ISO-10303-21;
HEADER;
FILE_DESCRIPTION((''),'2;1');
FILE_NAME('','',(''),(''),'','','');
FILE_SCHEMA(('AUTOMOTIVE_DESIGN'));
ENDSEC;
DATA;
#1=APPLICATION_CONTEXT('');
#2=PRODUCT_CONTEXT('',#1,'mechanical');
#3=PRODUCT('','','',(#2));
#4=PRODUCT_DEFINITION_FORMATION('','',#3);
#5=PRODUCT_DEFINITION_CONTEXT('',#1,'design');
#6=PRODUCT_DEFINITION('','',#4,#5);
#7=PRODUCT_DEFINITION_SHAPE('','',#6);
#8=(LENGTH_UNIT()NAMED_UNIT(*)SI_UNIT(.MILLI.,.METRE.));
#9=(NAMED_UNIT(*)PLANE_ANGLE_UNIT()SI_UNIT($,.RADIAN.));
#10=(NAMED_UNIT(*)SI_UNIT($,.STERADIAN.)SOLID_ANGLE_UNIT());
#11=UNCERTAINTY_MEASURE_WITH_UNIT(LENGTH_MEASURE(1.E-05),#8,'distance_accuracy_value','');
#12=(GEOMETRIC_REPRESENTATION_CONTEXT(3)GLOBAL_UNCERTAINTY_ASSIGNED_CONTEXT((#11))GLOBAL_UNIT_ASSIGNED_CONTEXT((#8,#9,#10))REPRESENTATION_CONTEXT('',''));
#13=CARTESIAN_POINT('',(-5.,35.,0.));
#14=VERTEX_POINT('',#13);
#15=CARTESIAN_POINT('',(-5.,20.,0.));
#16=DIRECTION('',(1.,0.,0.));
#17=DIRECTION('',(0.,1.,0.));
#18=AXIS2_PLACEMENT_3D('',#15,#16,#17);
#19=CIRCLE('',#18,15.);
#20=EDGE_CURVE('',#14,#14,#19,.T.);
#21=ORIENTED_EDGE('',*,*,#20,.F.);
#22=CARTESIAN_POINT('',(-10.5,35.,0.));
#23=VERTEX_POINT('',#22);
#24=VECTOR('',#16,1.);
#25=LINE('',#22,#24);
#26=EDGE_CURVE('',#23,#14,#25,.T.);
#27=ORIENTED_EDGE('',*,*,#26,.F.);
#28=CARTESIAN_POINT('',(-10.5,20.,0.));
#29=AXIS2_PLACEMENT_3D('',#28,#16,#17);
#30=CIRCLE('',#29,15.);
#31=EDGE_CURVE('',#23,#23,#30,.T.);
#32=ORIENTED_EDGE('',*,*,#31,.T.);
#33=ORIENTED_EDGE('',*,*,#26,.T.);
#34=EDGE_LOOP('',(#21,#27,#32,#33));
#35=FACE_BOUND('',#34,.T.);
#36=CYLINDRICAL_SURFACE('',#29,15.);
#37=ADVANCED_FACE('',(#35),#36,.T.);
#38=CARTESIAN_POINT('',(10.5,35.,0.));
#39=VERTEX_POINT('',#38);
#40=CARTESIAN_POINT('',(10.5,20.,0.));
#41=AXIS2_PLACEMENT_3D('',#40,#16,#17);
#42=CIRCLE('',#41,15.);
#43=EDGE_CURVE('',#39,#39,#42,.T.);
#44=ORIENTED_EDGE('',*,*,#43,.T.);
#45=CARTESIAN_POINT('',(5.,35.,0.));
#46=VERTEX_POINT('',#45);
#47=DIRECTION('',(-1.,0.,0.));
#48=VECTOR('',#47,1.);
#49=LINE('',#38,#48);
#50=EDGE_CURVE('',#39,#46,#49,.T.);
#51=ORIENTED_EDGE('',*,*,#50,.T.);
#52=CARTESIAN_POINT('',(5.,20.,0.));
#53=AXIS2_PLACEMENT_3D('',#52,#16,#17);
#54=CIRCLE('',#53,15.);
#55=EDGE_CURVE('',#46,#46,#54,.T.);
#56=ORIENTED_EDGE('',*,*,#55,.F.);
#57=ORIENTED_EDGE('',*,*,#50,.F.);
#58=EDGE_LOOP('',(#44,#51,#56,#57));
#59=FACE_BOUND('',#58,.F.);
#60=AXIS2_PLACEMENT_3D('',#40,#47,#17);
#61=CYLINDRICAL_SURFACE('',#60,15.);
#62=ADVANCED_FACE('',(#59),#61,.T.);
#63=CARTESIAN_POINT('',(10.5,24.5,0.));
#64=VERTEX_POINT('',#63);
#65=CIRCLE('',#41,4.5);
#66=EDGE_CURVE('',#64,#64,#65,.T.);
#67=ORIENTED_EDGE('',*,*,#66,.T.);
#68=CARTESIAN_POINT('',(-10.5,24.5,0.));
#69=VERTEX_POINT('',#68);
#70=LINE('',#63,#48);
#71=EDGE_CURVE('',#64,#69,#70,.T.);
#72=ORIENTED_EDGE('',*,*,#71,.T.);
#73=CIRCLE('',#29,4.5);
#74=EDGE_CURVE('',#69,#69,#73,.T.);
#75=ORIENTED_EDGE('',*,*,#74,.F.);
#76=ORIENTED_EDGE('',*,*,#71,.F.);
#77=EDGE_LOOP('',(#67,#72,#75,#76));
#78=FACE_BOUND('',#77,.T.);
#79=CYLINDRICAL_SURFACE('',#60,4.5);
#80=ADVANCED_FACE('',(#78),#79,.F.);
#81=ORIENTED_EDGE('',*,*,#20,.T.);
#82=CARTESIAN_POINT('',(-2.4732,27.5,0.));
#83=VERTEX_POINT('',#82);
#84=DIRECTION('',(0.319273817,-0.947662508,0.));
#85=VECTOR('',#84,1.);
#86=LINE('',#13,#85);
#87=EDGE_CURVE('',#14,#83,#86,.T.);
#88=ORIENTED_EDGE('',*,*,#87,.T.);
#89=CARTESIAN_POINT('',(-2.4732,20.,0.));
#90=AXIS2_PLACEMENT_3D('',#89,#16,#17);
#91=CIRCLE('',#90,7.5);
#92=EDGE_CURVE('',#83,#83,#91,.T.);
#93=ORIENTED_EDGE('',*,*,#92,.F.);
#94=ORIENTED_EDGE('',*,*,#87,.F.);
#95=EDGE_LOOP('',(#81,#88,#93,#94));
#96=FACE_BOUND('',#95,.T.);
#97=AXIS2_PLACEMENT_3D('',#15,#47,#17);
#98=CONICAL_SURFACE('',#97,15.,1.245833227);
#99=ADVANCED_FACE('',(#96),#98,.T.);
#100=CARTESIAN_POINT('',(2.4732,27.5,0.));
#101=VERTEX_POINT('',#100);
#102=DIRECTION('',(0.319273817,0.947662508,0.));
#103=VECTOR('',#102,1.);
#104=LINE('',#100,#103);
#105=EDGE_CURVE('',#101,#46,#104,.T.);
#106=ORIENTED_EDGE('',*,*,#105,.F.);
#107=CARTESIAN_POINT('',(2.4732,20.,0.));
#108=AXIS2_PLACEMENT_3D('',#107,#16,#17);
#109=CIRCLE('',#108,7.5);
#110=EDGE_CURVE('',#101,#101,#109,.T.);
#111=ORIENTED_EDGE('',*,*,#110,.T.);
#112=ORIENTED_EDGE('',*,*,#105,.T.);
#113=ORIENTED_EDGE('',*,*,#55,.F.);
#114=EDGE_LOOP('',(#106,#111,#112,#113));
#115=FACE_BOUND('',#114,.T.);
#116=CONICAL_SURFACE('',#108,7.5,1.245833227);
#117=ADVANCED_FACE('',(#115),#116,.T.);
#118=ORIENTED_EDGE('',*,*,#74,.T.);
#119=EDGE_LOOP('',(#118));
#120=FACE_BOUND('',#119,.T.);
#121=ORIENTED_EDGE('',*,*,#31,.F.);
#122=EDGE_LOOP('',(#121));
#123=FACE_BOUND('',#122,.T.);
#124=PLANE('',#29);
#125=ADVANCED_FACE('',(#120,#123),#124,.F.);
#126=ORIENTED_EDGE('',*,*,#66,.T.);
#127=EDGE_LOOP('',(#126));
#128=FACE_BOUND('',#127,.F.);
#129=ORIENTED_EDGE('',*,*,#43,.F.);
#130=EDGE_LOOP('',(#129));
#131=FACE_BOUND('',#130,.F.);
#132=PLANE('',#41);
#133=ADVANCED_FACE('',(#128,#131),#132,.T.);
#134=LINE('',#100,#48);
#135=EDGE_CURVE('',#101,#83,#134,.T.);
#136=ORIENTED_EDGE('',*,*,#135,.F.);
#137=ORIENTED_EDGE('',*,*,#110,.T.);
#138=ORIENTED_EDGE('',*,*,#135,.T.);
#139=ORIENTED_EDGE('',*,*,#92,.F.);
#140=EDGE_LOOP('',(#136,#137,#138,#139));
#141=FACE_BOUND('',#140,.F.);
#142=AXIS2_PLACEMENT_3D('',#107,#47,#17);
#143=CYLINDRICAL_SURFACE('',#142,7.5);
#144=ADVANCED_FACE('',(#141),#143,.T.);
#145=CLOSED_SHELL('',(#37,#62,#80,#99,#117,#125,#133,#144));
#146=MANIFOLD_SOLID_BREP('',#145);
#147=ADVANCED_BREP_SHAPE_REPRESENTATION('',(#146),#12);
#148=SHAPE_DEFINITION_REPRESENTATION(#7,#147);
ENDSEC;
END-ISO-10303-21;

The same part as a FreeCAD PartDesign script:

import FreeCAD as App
import Part
import Sketcher
from FreeCAD import Vector
Q = App.Units.Quantity


def add_polygon(sketch, points):
    """Adds a closed chain of lines whose ends are joined by coincident constraints."""
    first, n = sketch.GeometryCount, len(points)
    for a, b in zip(points, points[1:] + points[:1]):
        sketch.addGeometry(Part.LineSegment(App.Vector(*a, 0), App.Vector(*b, 0)), False)
    for i in range(n):
        sketch.addConstraint(Sketcher.Constraint("Coincident", first + i, 2, first + (i + 1) % n, 1))

doc = App.newDocument("Part")
body = doc.addObject("PartDesign::Body", "Body")

# Sketch on XY plane
sketch1 = body.newObject("Sketcher::SketchObject", "Sketch")
sketch1.AttachmentSupport = (doc.getObject("XY_Plane"), [""])
sketch1.MapMode = "FlatFace"
add_polygon(sketch1, [(-10.5, 24.5), (10.5, 24.5), (10.5, 35), (5, 35), (2.4732, 27.5), (-2.4732, 27.5), (-5, 35), (-10.5, 35)])  # lines 0-7
sketch1.addGeometry(Part.LineSegment(Vector(-10.5, 20, 0), Vector(10.5, 20, 0)), True)  # axis
sketch1.addConstraint(Sketcher.Constraint("Horizontal", 0))
sketch1.addConstraint(Sketcher.Constraint("Vertical", 1))
sketch1.addConstraint(Sketcher.Constraint("Horizontal", 2))
sketch1.addConstraint(Sketcher.Constraint("Horizontal", 4))
sketch1.addConstraint(Sketcher.Constraint("Horizontal", 6))
sketch1.addConstraint(Sketcher.Constraint("Vertical", 7))
sketch1.addConstraint(Sketcher.Constraint("Horizontal", 8))
sketch1.addConstraint(Sketcher.Constraint("Symmetric", 2, 2, 5, 2, -2))
sketch1.addConstraint(Sketcher.Constraint("Vertical", 7, 2, 8, 1))
sketch1.addConstraint(Sketcher.Constraint("Vertical", 1, 2, 8, 2))
sketch1.addConstraint(Sketcher.Constraint("Equal", 2, 6))
sketch1.addConstraint(Sketcher.Constraint("Equal", 3, 5))
sketch1.addConstraint(Sketcher.Constraint("DistanceX", 0, 1, 0, 2, 21.0))
sketch1.addConstraint(Sketcher.Constraint("DistanceX", 2, 2, 2, 1, 5.5))
sketch1.addConstraint(Sketcher.Constraint("DistanceY", 8, 1, 6, 2, 15.0))
sketch1.addConstraint(Sketcher.Constraint("DistanceY", 1, 1, 1, 2, 10.5))
sketch1.addConstraint(Sketcher.Constraint("DistanceY", -1, 1, 1, 2, 35.0))
sketch1.addConstraint(Sketcher.Constraint("DistanceY", 0, 2, 3, 2, 3.0))
sketch1.addConstraint(Sketcher.Constraint("Angle", 3, Q("-108.619 deg")))
revolution = body.newObject("PartDesign::Revolution", "Revolution")
revolution.Profile = sketch1
revolution.ReferenceAxis = (sketch1, ["Axis0"])
revolution.Angle = 360

doc.recompute()
